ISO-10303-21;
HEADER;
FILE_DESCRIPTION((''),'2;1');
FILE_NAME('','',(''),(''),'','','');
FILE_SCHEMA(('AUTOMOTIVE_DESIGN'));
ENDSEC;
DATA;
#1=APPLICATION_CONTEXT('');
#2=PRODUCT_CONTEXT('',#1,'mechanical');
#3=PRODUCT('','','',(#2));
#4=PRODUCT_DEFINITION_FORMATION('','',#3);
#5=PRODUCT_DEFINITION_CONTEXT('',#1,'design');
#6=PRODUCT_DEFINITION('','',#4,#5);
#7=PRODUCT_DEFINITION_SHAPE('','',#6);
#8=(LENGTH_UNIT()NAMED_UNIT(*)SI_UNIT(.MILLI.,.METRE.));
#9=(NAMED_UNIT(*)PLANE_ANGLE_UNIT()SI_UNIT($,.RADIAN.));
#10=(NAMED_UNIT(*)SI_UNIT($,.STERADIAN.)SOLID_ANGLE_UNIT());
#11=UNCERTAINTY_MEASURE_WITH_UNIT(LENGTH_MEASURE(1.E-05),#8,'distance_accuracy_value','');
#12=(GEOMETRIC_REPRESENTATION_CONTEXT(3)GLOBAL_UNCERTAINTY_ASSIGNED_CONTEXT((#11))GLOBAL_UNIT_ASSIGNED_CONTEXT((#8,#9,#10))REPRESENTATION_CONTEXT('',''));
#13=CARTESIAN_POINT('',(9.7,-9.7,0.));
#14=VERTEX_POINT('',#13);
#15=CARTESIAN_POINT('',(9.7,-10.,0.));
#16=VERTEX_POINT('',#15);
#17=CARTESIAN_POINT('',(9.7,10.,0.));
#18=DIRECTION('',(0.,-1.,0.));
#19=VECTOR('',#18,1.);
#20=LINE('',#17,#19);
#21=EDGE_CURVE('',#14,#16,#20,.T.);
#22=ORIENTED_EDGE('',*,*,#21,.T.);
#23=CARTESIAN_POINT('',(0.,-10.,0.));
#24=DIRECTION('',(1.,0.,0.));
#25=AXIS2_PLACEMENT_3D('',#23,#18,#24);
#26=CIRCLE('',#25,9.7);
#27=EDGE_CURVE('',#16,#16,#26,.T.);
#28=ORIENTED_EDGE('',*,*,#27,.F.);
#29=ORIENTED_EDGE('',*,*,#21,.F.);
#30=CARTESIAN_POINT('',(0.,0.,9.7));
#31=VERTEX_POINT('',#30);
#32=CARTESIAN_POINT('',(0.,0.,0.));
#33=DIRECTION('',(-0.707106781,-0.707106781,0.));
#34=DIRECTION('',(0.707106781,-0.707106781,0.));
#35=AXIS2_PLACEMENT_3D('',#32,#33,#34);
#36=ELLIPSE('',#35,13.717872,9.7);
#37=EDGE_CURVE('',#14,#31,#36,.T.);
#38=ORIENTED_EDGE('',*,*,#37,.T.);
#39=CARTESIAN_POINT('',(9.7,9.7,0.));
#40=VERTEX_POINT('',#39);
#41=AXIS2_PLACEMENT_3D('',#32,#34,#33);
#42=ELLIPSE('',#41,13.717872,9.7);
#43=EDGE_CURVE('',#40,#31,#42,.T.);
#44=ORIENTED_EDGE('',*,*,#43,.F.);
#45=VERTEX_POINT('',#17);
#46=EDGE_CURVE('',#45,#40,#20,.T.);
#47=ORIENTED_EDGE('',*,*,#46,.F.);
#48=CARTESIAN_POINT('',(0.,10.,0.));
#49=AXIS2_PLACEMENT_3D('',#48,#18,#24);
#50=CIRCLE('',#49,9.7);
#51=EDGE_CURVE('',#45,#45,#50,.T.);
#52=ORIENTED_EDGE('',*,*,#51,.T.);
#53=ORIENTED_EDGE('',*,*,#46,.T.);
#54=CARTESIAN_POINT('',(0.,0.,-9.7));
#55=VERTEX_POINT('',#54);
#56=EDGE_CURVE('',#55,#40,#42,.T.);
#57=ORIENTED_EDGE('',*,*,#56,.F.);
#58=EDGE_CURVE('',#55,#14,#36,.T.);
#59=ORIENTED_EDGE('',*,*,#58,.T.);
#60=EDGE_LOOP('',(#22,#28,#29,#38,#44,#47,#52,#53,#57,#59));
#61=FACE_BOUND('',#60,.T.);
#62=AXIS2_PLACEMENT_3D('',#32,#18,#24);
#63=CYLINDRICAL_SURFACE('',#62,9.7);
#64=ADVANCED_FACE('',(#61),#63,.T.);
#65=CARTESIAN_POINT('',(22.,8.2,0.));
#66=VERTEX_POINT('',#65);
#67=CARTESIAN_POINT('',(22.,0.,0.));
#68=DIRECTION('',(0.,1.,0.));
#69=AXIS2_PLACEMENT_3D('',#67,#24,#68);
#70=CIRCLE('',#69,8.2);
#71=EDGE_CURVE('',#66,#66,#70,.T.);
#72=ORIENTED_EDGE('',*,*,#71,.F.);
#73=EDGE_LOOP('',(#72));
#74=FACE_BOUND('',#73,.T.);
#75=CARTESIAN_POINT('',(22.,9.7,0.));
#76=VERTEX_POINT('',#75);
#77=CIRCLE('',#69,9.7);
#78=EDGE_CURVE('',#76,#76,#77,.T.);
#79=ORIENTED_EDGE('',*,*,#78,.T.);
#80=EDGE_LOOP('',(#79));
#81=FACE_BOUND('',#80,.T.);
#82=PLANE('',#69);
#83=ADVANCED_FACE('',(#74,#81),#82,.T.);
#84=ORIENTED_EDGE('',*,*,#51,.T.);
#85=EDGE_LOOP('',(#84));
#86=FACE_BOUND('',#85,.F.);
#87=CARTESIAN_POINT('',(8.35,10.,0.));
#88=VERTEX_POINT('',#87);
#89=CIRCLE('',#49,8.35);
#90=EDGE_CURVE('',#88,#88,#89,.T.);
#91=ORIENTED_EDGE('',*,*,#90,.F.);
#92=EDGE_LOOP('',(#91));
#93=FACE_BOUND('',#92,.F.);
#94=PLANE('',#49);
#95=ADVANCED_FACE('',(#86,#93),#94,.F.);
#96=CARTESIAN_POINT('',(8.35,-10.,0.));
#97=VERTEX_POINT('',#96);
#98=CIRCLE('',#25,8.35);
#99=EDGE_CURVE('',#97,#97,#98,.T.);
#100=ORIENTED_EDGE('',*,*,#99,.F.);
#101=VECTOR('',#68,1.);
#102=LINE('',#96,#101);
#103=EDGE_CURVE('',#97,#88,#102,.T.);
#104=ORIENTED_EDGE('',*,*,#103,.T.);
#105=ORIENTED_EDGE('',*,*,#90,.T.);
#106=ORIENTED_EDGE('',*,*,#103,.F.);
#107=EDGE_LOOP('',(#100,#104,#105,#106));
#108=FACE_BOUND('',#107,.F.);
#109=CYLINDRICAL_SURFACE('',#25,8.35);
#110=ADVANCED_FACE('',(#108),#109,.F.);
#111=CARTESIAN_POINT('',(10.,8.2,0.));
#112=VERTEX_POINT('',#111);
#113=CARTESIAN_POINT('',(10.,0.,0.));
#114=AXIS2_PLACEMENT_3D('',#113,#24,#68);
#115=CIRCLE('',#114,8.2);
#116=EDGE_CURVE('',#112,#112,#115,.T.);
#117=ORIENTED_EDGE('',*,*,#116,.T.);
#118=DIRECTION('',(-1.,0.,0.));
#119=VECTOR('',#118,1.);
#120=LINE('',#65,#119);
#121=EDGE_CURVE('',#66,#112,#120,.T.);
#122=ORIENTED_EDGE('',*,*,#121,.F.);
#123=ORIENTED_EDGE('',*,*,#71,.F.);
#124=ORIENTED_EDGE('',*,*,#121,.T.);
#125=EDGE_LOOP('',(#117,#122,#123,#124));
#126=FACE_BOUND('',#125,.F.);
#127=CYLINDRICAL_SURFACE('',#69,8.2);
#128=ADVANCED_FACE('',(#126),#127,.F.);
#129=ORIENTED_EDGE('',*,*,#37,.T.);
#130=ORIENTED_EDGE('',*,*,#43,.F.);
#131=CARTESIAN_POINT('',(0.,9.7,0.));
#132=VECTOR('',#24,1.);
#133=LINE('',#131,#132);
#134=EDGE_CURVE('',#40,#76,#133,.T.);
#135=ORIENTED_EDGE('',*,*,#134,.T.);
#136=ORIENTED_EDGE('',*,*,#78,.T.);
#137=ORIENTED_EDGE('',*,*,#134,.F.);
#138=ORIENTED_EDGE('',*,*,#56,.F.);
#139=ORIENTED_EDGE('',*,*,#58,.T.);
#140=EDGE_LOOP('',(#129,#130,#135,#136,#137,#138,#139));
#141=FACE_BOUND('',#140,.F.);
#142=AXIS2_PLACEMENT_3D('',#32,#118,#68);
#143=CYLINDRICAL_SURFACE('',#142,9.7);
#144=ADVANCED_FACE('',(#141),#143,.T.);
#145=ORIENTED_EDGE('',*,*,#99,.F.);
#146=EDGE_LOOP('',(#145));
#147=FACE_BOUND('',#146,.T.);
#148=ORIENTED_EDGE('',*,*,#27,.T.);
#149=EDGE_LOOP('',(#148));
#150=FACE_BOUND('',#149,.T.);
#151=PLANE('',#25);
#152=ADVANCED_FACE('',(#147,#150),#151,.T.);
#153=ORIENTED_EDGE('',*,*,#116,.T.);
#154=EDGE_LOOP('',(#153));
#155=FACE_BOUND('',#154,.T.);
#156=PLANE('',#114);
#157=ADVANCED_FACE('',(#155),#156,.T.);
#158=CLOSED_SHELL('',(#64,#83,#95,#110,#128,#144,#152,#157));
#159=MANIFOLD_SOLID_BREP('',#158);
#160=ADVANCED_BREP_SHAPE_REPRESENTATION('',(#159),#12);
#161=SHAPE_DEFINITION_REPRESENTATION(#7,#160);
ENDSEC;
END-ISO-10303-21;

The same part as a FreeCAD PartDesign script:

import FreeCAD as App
import Part
import Sketcher
from FreeCAD import Vector
Q = App.Units.Quantity

doc = App.newDocument("Part")
params = doc.addObject("Spreadsheet::Sheet", "Params")
for row, (alias, value) in enumerate([
    ("sketch1_diameter", "19.4 mm"),
    ("pad1_length", "20 mm"),
    ("sketch2_diameter", "19.4 mm"),
    ("pad2_length", "22 mm"),
    ("sketch3_diameter", "16.7 mm"),
    ("pocket1_length", "23 mm"),
    ("sketch4_diameter", "16.4 mm"),
    ("pocket2_length", "12 mm"),
], start=1):
    params.set(f"A{row}", alias)
    params.set(f"B{row}", "=" + value)
    params.setAlias(f"B{row}", alias)

body = doc.addObject("PartDesign::Body", "Body")

# Sketch on XZ plane
sketch1 = doc.addObject("Sketcher::SketchObject", "Sketch")
body.addObject(sketch1)
sketch1.AttachmentSupport = (doc.XZ_Plane, [""])
sketch1.MapMode = "FlatFace"
sketch1.addGeometry(Part.Circle(Vector(0, 0, 0), Vector(0, 0, 1), 9.7), False)
sketch1.addConstraint([
    Sketcher.Constraint("Coincident", 0, 3, -1, 1),
    Sketcher.Constraint("Diameter", 0, Q("19.4 mm")),
])
sketch1.setExpression("Constraints[1]", "Params.sketch1_diameter")
pad1 = doc.addObject("PartDesign::Pad", "Pad")
body.addObject(pad1)
pad1.Profile = sketch1
pad1.setExpression("Length", "Params.pad1_length")
pad1.Midplane = True

# Sketch on YZ plane
sketch2 = doc.addObject("Sketcher::SketchObject", "Sketch001")
body.addObject(sketch2)
sketch2.AttachmentSupport = (doc.YZ_Plane, [""])
sketch2.MapMode = "FlatFace"
sketch2.addGeometry(Part.Circle(Vector(0, 0, 0), Vector(0, 0, 1), 9.7), False)
sketch2.addConstraint([
    Sketcher.Constraint("Coincident", 0, 3, -1, 1),
    Sketcher.Constraint("Diameter", 0, Q("19.4 mm")),
])
sketch2.setExpression("Constraints[1]", "Params.sketch2_diameter")
pad2 = doc.addObject("PartDesign::Pad", "Pad001")
body.addObject(pad2)
pad2.Profile = sketch2
pad2.setExpression("Length", "Params.pad2_length")

# Sketch on XZ plane
sketch3 = doc.addObject("Sketcher::SketchObject", "Sketch002")
body.addObject(sketch3)
sketch3.AttachmentSupport = (doc.XZ_Plane, [""])
sketch3.MapMode = "FlatFace"
sketch3.AttachmentOffset = App.Placement(Vector(0, 0, 10), App.Rotation())
sketch3.addGeometry(Part.Circle(Vector(0, 0, 0), Vector(0, 0, 1), 8.35), False)
sketch3.addConstraint([
    Sketcher.Constraint("Coincident", 0, 3, -1, 1),
    Sketcher.Constraint("Diameter", 0, Q("16.7 mm")),
])
sketch3.setExpression("Constraints[1]", "Params.sketch3_diameter")
pocket1 = doc.addObject("PartDesign::Pocket", "Pocket")
body.addObject(pocket1)
pocket1.Profile = sketch3
pocket1.setExpression("Length", "Params.pocket1_length")

# Sketch on YZ plane
sketch4 = doc.addObject("Sketcher::SketchObject", "Sketch003")
body.addObject(sketch4)
sketch4.AttachmentSupport = (doc.YZ_Plane, [""])
sketch4.MapMode = "FlatFace"
sketch4.AttachmentOffset = App.Placement(Vector(0, 0, 22), App.Rotation())
sketch4.addGeometry(Part.Circle(Vector(0, 0, 0), Vector(0, 0, 1), 8.2), False)
sketch4.addConstraint([
    Sketcher.Constraint("Coincident", 0, 3, -1, 1),
    Sketcher.Constraint("Diameter", 0, Q("16.4 mm")),
])
sketch4.setExpression("Constraints[1]", "Params.sketch4_diameter")
pocket2 = doc.addObject("PartDesign::Pocket", "Pocket001")
body.addObject(pocket2)
pocket2.Profile = sketch4
pocket2.setExpression("Length", "Params.pocket2_length")

doc.recompute()
